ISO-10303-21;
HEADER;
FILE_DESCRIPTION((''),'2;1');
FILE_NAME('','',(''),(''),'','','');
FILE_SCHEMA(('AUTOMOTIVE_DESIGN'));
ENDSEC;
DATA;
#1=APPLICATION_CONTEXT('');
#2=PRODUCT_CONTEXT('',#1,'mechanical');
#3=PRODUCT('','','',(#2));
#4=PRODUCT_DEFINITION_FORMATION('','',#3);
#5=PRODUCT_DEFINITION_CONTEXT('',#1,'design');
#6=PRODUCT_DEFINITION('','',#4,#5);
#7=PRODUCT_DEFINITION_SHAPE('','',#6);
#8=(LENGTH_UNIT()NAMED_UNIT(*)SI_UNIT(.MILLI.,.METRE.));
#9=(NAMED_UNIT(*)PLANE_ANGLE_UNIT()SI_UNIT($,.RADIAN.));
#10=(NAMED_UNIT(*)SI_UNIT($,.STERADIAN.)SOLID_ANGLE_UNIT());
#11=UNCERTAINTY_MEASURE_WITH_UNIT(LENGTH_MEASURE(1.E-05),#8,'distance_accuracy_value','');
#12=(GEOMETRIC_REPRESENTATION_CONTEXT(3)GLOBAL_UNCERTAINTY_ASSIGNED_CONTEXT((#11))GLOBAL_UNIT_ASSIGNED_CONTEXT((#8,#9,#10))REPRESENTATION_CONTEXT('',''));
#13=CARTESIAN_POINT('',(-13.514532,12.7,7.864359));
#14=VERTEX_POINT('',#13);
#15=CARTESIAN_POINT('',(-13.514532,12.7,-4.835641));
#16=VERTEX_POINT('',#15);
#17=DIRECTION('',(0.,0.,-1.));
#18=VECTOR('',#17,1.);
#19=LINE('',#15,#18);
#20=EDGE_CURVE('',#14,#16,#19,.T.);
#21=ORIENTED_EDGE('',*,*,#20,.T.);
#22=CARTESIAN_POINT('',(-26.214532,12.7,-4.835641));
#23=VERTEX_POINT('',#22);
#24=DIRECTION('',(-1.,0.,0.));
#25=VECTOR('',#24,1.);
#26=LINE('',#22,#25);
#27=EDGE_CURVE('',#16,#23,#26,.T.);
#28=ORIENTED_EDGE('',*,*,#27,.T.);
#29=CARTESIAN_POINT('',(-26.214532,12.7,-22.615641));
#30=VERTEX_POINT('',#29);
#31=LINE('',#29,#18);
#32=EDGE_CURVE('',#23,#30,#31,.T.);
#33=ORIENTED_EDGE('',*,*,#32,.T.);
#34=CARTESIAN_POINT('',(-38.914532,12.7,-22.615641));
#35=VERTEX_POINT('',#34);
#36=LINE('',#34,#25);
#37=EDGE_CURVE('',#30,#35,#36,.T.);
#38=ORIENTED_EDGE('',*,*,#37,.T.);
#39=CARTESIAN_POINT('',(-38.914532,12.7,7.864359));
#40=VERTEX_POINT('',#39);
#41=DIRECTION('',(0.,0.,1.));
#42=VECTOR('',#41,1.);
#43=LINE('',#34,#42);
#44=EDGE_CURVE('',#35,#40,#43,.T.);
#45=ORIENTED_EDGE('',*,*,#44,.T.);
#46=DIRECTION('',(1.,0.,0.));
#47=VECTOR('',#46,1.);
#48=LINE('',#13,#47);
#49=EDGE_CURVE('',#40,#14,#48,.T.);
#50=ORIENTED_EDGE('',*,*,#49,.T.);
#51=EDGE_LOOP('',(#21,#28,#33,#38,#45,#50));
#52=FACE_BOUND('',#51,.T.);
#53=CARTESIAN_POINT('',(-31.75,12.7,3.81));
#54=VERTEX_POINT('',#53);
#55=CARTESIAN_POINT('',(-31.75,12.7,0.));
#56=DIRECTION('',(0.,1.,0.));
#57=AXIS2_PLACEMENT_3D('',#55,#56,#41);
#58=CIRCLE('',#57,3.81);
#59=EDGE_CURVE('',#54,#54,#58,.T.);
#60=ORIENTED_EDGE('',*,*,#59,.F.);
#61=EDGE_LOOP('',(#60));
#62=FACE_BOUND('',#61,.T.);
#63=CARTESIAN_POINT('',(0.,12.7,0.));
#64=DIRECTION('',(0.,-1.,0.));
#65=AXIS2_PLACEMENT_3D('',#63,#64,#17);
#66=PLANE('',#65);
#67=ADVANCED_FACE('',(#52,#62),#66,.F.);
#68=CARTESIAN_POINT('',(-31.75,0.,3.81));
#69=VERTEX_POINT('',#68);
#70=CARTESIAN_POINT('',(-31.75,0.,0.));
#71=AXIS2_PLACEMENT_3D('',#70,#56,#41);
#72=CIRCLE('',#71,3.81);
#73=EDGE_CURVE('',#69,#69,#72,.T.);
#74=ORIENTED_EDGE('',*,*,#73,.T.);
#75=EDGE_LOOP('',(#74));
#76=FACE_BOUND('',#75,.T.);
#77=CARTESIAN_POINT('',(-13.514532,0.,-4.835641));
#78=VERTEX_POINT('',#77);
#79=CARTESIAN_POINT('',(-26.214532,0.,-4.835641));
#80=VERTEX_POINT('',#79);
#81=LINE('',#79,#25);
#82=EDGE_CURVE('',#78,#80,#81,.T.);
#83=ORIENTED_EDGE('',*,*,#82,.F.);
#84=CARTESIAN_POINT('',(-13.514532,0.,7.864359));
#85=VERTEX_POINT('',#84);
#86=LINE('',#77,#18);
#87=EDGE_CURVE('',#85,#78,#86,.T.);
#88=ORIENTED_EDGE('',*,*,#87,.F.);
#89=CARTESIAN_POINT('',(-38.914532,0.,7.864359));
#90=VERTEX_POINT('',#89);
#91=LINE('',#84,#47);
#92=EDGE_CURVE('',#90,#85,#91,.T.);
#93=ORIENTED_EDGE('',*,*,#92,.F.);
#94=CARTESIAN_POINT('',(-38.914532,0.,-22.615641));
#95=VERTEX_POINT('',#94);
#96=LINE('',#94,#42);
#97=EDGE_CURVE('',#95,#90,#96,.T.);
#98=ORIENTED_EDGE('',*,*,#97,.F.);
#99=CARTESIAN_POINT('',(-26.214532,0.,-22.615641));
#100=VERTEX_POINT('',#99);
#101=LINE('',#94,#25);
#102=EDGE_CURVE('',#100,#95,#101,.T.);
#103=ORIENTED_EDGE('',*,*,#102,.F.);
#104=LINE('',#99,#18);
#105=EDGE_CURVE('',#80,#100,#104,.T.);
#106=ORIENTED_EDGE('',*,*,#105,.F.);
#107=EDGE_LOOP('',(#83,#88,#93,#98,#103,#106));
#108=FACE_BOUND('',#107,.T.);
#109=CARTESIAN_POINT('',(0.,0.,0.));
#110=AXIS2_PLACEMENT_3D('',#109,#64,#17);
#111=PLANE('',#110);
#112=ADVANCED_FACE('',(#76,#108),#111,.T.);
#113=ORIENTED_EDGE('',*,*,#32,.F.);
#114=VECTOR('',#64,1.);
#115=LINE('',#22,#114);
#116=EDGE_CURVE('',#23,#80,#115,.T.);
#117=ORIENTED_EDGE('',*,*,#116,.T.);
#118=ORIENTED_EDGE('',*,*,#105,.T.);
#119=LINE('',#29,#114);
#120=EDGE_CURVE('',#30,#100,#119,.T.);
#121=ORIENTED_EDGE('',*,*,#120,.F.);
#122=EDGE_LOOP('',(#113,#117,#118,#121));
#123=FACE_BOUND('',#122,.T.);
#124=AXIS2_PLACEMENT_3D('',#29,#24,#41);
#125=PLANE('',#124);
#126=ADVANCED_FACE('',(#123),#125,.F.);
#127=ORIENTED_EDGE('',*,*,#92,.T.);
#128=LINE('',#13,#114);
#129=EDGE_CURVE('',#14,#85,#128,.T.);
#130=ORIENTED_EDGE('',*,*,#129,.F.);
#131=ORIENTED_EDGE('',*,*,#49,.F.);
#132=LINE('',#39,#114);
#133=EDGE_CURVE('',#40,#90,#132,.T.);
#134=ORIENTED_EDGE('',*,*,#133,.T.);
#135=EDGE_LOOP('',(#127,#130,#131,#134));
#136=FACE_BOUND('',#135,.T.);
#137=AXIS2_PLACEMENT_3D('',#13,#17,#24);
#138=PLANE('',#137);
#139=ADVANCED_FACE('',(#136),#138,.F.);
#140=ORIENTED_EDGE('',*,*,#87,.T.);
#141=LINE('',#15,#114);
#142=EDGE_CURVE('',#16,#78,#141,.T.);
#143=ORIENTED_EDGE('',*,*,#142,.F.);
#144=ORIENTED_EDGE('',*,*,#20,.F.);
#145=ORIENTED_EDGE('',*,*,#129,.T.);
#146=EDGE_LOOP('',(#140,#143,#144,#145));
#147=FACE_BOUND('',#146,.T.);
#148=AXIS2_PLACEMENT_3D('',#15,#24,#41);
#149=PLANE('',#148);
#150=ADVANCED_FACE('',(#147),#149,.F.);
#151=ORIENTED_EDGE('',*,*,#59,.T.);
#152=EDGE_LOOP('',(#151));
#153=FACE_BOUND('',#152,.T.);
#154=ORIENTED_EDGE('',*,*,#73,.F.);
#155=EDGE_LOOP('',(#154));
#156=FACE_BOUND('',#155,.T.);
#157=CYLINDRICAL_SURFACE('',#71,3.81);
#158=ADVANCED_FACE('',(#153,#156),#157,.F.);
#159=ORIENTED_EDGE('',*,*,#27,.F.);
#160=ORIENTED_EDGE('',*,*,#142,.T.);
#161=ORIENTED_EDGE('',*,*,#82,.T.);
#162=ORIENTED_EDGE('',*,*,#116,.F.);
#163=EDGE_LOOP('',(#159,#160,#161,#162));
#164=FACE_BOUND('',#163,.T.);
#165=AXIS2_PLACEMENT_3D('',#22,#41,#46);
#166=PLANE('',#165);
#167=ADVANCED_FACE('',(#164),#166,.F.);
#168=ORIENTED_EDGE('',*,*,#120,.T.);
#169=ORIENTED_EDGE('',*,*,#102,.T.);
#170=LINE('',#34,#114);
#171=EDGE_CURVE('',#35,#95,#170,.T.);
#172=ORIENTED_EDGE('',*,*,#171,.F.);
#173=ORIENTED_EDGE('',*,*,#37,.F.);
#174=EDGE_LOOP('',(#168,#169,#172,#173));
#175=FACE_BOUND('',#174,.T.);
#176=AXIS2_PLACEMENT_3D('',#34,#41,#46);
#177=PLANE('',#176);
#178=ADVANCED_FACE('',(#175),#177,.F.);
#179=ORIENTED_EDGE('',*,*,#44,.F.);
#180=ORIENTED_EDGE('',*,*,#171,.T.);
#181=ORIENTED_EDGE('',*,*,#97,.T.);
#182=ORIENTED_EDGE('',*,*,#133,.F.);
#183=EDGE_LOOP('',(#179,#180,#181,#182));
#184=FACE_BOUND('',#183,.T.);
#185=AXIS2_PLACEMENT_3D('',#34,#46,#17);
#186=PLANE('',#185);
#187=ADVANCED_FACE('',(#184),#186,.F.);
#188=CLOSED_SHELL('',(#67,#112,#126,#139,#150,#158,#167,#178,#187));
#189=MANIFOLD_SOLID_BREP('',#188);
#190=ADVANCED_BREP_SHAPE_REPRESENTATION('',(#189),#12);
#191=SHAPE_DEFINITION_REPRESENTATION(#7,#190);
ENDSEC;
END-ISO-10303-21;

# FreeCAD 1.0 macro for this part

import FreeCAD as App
import Part
import Sketcher

V = App.Vector
Q = App.Units.Quantity


def add_polygon(sketch, points):
    """Adds a closed chain of lines whose ends are joined by coincident constraints."""
    first, n = sketch.GeometryCount, len(points)
    for a, b in zip(points, points[1:] + points[:1]):
        sketch.addGeometry(Part.LineSegment(App.Vector(*a, 0), App.Vector(*b, 0)), False)
    for i in range(n):
        sketch.addConstraint(Sketcher.Constraint("Coincident", first + i, 2, first + (i + 1) % n, 1))

doc = App.newDocument("Part")
params = doc.addObject("Spreadsheet::Sheet", "Params")
for row, (alias, value) in enumerate([
    ("sketch1_width", "1 in"),
    ("sketch1_height", "1.2 in"),
    ("pad1_length", "0.5 in"),
    ("sketch2_diameter", "0.3 in"),
], start=1):
    params.set(f"A{row}", alias)
    params.set(f"B{row}", "=" + value)
    params.setAlias(f"B{row}", alias)

body = doc.addObject("PartDesign::Body", "Body")

# Sketch on XZ plane
sketch1 = body.newObject("Sketcher::SketchObject", "Sketch")
sketch1.AttachmentSupport = (doc.getObject("XZ_Plane"), [""])
sketch1.MapMode = "FlatFace"
add_polygon(sketch1, [(-39, -23), (-39, 8), (-14, 8), (-14, -5), (-26, -5), (-26, -23)])  # lines 0-5
sketch1.addConstraint(Sketcher.Constraint("Vertical", 0))
sketch1.addConstraint(Sketcher.Constraint("Horizontal", 1))
sketch1.addConstraint(Sketcher.Constraint("Vertical", 2))
sketch1.addConstraint(Sketcher.Constraint("Horizontal", 3))
sketch1.addConstraint(Sketcher.Constraint("Vertical", 4))
sketch1.addConstraint(Sketcher.Constraint("Horizontal", 5))
sketch1.addConstraint(Sketcher.Constraint("Equal", 3, 5))
sketch1.addConstraint(Sketcher.Constraint("Equal", 5, 2))
sketch1.addConstraint(Sketcher.Constraint("DistanceX", 1, 1, 1, 2, Q("1 in")))
sketch1.addConstraint(Sketcher.Constraint("DistanceY", 0, 1, 0, 2, Q("1.2 in")))
sketch1.addConstraint(Sketcher.Constraint("DistanceX", 0, 2, -1, 1, 38.914532))
sketch1.addConstraint(Sketcher.Constraint("DistanceY", -1, 1, 0, 2, 7.864359))
sketch1.setExpression("Constraints[14]", "Params.sketch1_width")
sketch1.setExpression("Constraints[15]", "Params.sketch1_height")
pad1 = body.newObject("PartDesign::Pad", "Pad")
pad1.Profile = sketch1
pad1.setExpression("Length", "Params.pad1_length")
pad1.Reversed = True

# Sketch on XZ plane
sketch2 = body.newObject("Sketcher::SketchObject", "Sketch001")
sketch2.AttachmentSupport = (doc.getObject("XZ_Plane"), [""])
sketch2.MapMode = "FlatFace"
sketch2.AttachmentOffset = App.Placement(V(0, 0, -0.5 * 25.4), App.Rotation())
sketch2.addGeometry(Part.Circle(V(-31.8, 0, 0), V(0, 0, 1), 3.8), False)
sketch2.addConstraint(Sketcher.Constraint("PointOnObject", 0, 3, -1))
sketch2.addConstraint(Sketcher.Constraint("Diameter", 0, Q("0.3 in")))
sketch2.addConstraint(Sketcher.Constraint("DistanceX", 0, 3, -1, 1, Q("1.25 in")))
sketch2.setExpression("Constraints[1]", "Params.sketch2_diameter")
pocket1 = body.newObject("PartDesign::Pocket", "Pocket")
pocket1.Profile = sketch2
pocket1.Type = "ThroughAll"
pocket1.Reversed = True

doc.recompute()
